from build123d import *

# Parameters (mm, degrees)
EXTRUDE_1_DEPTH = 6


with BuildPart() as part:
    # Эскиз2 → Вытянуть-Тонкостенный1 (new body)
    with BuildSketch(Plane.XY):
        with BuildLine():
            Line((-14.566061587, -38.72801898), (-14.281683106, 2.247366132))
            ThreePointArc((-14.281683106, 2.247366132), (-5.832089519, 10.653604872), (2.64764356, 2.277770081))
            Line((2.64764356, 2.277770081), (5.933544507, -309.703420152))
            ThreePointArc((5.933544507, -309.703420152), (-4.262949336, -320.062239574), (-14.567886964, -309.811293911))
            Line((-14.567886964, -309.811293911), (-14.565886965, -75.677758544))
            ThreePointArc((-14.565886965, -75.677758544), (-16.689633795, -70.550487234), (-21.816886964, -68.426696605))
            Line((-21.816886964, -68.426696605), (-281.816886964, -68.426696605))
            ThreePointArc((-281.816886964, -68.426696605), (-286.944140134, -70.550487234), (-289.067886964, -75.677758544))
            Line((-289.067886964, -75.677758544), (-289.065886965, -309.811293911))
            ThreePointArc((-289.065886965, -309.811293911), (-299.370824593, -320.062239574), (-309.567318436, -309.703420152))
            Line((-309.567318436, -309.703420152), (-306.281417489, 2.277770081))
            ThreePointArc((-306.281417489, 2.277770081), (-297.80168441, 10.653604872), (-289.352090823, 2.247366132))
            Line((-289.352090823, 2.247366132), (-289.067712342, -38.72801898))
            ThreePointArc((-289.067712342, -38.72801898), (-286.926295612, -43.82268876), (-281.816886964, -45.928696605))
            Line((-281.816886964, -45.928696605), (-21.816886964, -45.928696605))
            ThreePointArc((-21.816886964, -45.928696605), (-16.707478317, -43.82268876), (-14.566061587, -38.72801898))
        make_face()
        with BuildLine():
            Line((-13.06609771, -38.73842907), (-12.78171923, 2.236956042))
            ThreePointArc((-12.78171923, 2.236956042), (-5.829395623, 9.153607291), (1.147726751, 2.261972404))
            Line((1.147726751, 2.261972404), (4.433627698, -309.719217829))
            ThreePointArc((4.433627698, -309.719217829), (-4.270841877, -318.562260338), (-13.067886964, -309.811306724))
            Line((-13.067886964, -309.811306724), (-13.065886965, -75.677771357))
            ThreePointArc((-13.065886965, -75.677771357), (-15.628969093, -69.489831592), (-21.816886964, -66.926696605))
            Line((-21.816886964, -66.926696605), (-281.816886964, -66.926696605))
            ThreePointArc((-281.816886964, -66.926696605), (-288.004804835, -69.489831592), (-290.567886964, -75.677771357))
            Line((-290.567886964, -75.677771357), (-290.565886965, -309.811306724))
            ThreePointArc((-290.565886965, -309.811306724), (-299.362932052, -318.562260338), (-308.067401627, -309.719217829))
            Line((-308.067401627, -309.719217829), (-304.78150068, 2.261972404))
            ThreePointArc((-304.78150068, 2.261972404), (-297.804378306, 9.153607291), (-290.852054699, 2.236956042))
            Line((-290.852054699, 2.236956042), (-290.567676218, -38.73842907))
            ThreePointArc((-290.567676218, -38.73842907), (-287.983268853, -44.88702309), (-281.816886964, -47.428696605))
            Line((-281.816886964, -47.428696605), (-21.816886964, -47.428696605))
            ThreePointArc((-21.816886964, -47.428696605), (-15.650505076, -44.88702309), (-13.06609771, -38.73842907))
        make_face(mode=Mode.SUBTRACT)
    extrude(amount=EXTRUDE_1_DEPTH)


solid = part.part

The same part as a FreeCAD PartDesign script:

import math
import FreeCAD as App
import Part
import Sketcher

V = App.Vector
Q = App.Units.Quantity

doc = App.newDocument("Part")
params = doc.addObject("Spreadsheet::Sheet", "Params")
for row, (alias, value) in enumerate([
    ("sketch1_width", "260 mm"),
    ("pad1_length", "6 mm"),
], start=1):
    params.set(f"A{row}", alias)
    params.set(f"B{row}", "=" + value)
    params.setAlias(f"B{row}", alias)

body = doc.addObject("PartDesign::Body", "Body")

sketch1 = doc.addObject("Sketcher::SketchObject", "Sketch")
body.addObject(sketch1)
sketch1.AttachmentSupport = (doc.XY_Plane, [""])
sketch1.MapMode = "FlatFace"
sketch1.addGeometry(Part.LineSegment(V(-14.281683, 2.247366, 0), V(-14.566062, -38.728019, 0)), False)
sketch1.addGeometry(Part.ArcOfCircle(Part.Circle(V(-21.816887, -38.677697, 0), V(0, 0, 1), 7.251), math.radians(-90), math.radians(-0.397639)), False)
sketch1.addGeometry(Part.LineSegment(V(-21.816887, -45.928697, 0), V(-281.816887, -45.928697, 0)), False)
sketch1.addGeometry(Part.ArcOfCircle(Part.Circle(V(-281.816887, -38.677697, 0), V(0, 0, 1), 7.251), math.radians(-179.602361), math.radians(-90)), False)
sketch1.addGeometry(Part.LineSegment(V(-289.067712, -38.728019, 0), V(-289.352091, 2.247366, 0)), False)
sketch1.addGeometry(Part.ArcOfCircle(Part.Circle(V(-297.816887, 2.188619, 0), V(0, 0, 1), 8.465), math.radians(0.397639), math.radians(179.396562)), False)
sketch1.addGeometry(Part.LineSegment(V(-306.281417, 2.27777, 0), V(-309.567318, -309.70342, 0)), False)
sketch1.addGeometry(Part.ArcOfCircle(Part.Circle(V(-299.316887, -309.811381, 0), V(0, 0, 1), 10.251), math.radians(179.396562), math.radians(360.000489)), False)
sketch1.addGeometry(Part.LineSegment(V(-289.065887, -309.811294, 0), V(-289.067887, -75.677759, 0)), False)
sketch1.addGeometry(Part.ArcOfCircle(Part.Circle(V(-281.816887, -75.677697, 0), V(0, 0, 1), 7.251), math.radians(90), math.radians(180.000489)), False)
sketch1.addGeometry(Part.LineSegment(V(-281.816887, -68.426697, 0), V(-21.816887, -68.426697, 0)), False)
sketch1.addGeometry(Part.ArcOfCircle(Part.Circle(V(-21.816887, -75.677697, 0), V(0, 0, 1), 7.251), math.radians(-0.000489), math.radians(90)), False)
sketch1.addGeometry(Part.LineSegment(V(-14.565887, -75.677759, 0), V(-14.567887, -309.811294, 0)), False)
sketch1.addGeometry(Part.ArcOfCircle(Part.Circle(V(-4.316887, -309.811381, 0), V(0, 0, 1), 10.251), math.radians(179.999511), math.radians(360.603438)), False)
sketch1.addGeometry(Part.LineSegment(V(5.933545, -309.70342, 0), V(2.647644, 2.27777, 0)), False)
sketch1.addGeometry(Part.ArcOfCircle(Part.Circle(V(-5.816887, 2.188619, 0), V(0, 0, 1), 8.465), math.radians(0.603438), math.radians(179.602361)), False)
sketch1.addGeometry(Part.LineSegment(V(-13.066098, -38.738429, 0), V(-12.781719, 2.236956, 0)), False)
sketch1.addGeometry(Part.ArcOfCircle(Part.Circle(V(-5.816887, 2.188619, 0), V(0, 0, 1), 6.965), math.radians(0.603438), math.radians(179.602361)), False)
sketch1.addGeometry(Part.LineSegment(V(1.147727, 2.261972, 0), V(4.433628, -309.719218, 0)), False)
sketch1.addGeometry(Part.ArcOfCircle(Part.Circle(V(-4.316887, -309.811381, 0), V(0, 0, 1), 8.751), math.radians(179.999511), math.radians(360.603438)), False)
sketch1.addGeometry(Part.LineSegment(V(-13.067887, -309.811307, 0), V(-13.065887, -75.677771, 0)), False)
sketch1.addGeometry(Part.ArcOfCircle(Part.Circle(V(-21.816887, -75.677697, 0), V(0, 0, 1), 8.751), math.radians(-0.000489), math.radians(90)), False)
sketch1.addGeometry(Part.LineSegment(V(-21.816887, -66.926697, 0), V(-281.816887, -66.926697, 0)), False)
sketch1.addGeometry(Part.ArcOfCircle(Part.Circle(V(-281.816887, -75.677697, 0), V(0, 0, 1), 8.751), math.radians(90), math.radians(180.000489)), False)
sketch1.addGeometry(Part.LineSegment(V(-290.567887, -75.677771, 0), V(-290.565887, -309.811307, 0)), False)
sketch1.addGeometry(Part.ArcOfCircle(Part.Circle(V(-299.316887, -309.811381, 0), V(0, 0, 1), 8.751), math.radians(179.396562), math.radians(360.000489)), False)
sketch1.addGeometry(Part.LineSegment(V(-308.067402, -309.719218, 0), V(-304.781501, 2.261972, 0)), False)
sketch1.addGeometry(Part.ArcOfCircle(Part.Circle(V(-297.816887, 2.188619, 0), V(0, 0, 1), 6.965), math.radians(0.397639), math.radians(179.396562)), False)
sketch1.addGeometry(Part.LineSegment(V(-290.852055, 2.236956, 0), V(-290.567676, -38.738429, 0)), False)
sketch1.addGeometry(Part.ArcOfCircle(Part.Circle(V(-281.816887, -38.677697, 0), V(0, 0, 1), 8.751), math.radians(-179.602361), math.radians(-90)), False)
sketch1.addGeometry(Part.LineSegment(V(-281.816887, -47.428697, 0), V(-21.816887, -47.428697, 0)), False)
sketch1.addGeometry(Part.ArcOfCircle(Part.Circle(V(-21.816887, -38.677697, 0), V(0, 0, 1), 8.751), math.radians(-90), math.radians(-0.397639)), False)
sketch1.addConstraint(Sketcher.Constraint("Tangent", 0, 2, 1, 2))
sketch1.addConstraint(Sketcher.Constraint("Tangent", 1, 1, 2, 1))
sketch1.addConstraint(Sketcher.Constraint("Tangent", 2, 2, 3, 2))
sketch1.addConstraint(Sketcher.Constraint("Tangent", 3, 1, 4, 1))
sketch1.addConstraint(Sketcher.Constraint("Tangent", 4, 2, 5, 1))
sketch1.addConstraint(Sketcher.Constraint("Tangent", 5, 2, 6, 1))
sketch1.addConstraint(Sketcher.Constraint("Tangent", 6, 2, 7, 1))
sketch1.addConstraint(Sketcher.Constraint("Tangent", 7, 2, 8, 1))
sketch1.addConstraint(Sketcher.Constraint("Tangent", 8, 2, 9, 2))
sketch1.addConstraint(Sketcher.Constraint("Tangent", 9, 1, 10, 1))
sketch1.addConstraint(Sketcher.Constraint("Tangent", 10, 2, 11, 2))
sketch1.addConstraint(Sketcher.Constraint("Tangent", 11, 1, 12, 1))
sketch1.addConstraint(Sketcher.Constraint("Tangent", 12, 2, 13, 1))
sketch1.addConstraint(Sketcher.Constraint("Tangent", 13, 2, 14, 1))
sketch1.addConstraint(Sketcher.Constraint("Tangent", 14, 2, 15, 1))
sketch1.addConstraint(Sketcher.Constraint("Tangent", 15, 2, 0, 1))
sketch1.addConstraint(Sketcher.Constraint("Tangent", 16, 2, 17, 2))
sketch1.addConstraint(Sketcher.Constraint("Tangent", 17, 1, 18, 1))
sketch1.addConstraint(Sketcher.Constraint("Tangent", 18, 2, 19, 2))
sketch1.addConstraint(Sketcher.Constraint("Tangent", 19, 1, 20, 1))
sketch1.addConstraint(Sketcher.Constraint("Tangent", 20, 2, 21, 1))
sketch1.addConstraint(Sketcher.Constraint("Tangent", 21, 2, 22, 1))
sketch1.addConstraint(Sketcher.Constraint("Tangent", 22, 2, 23, 1))
sketch1.addConstraint(Sketcher.Constraint("Tangent", 23, 2, 24, 1))
sketch1.addConstraint(Sketcher.Constraint("Tangent", 24, 2, 25, 2))
sketch1.addConstraint(Sketcher.Constraint("Tangent", 25, 1, 26, 1))
sketch1.addConstraint(Sketcher.Constraint("Tangent", 26, 2, 27, 2))
sketch1.addConstraint(Sketcher.Constraint("Tangent", 27, 1, 28, 1))
sketch1.addConstraint(Sketcher.Constraint("Tangent", 28, 2, 29, 1))
sketch1.addConstraint(Sketcher.Constraint("Tangent", 29, 2, 30, 1))
sketch1.addConstraint(Sketcher.Constraint("Tangent", 30, 2, 31, 1))
sketch1.addConstraint(Sketcher.Constraint("Tangent", 31, 2, 16, 1))
sketch1.addConstraint(Sketcher.Constraint("Horizontal", 2))
sketch1.addConstraint(Sketcher.Constraint("Horizontal", 10))
sketch1.addConstraint(Sketcher.Constraint("Horizontal", 22))
sketch1.addConstraint(Sketcher.Constraint("Horizontal", 30))
sketch1.addConstraint(Sketcher.Constraint("Coincident", 17, 3, 15, 3))
sketch1.addConstraint(Sketcher.Constraint("Coincident", 19, 3, 13, 3))
sketch1.addConstraint(Sketcher.Constraint("Coincident", 21, 3, 11, 3))
sketch1.addConstraint(Sketcher.Constraint("Coincident", 23, 3, 9, 3))
sketch1.addConstraint(Sketcher.Constraint("Coincident", 25, 3, 7, 3))
sketch1.addConstraint(Sketcher.Constraint("Coincident", 27, 3, 5, 3))
sketch1.addConstraint(Sketcher.Constraint("Coincident", 29, 3, 3, 3))
sketch1.addConstraint(Sketcher.Constraint("Coincident", 31, 3, 1, 3))
sketch1.addConstraint(Sketcher.Constraint("Equal", 1, 3))
sketch1.addConstraint(Sketcher.Constraint("Equal", 3, 9))
sketch1.addConstraint(Sketcher.Constraint("Equal", 9, 11))
sketch1.addConstraint(Sketcher.Constraint("Equal", 7, 13))
sketch1.addConstraint(Sketcher.Constraint("Equal", 5, 15))
sketch1.addConstraint(Sketcher.Constraint("Equal", 19, 21))
sketch1.addConstraint(Sketcher.Constraint("Equal", 23, 25))
sketch1.addConstraint(Sketcher.Constraint("Equal", 17, 27))
sketch1.addConstraint(Sketcher.Constraint("Equal", 25, 29))
sketch1.addConstraint(Sketcher.Constraint("Parallel", 0, 16))
sketch1.addConstraint(Sketcher.Constraint("Parallel", 14, 18))
sketch1.addConstraint(Sketcher.Constraint("Horizontal", 7, 3, 13, 3))
sketch1.addConstraint(Sketcher.Constraint("Horizontal", 5, 3, 15, 3))
sketch1.addConstraint(Sketcher.Constraint("Horizontal", 0, 2, 3, 1))
sketch1.addConstraint(Sketcher.Constraint("Horizontal", 8, 2, 11, 1))
sketch1.addConstraint(Sketcher.Constraint("Vertical", 3, 3, 9, 3))
sketch1.addConstraint(Sketcher.Constraint("Vertical", 1, 3, 11, 3))
sketch1.addConstraint(Sketcher.Constraint("DistanceX", 2, 2, 2, 1, Q("260 mm")))
sketch1.addConstraint(Sketcher.Constraint("Radius", 1, Q("7.251 mm")))
sketch1.addConstraint(Sketcher.Constraint("Radius", 5, Q("8.465 mm")))
sketch1.addConstraint(Sketcher.Constraint("Radius", 7, Q("10.251 mm")))
sketch1.addConstraint(Sketcher.Constraint("DistanceX", 5, 3, 3, 3, Q("16 mm")))
sketch1.addConstraint(Sketcher.Constraint("DistanceY", 7, 3, 5, 3, Q("312 mm")))
sketch1.addConstraint(Sketcher.Constraint("DistanceY", 9, 3, 3, 3, Q("37 mm")))
sketch1.addConstraint(Sketcher.Constraint("DistanceX", 7, 3, 13, 3, Q("295 mm")))
sketch1.addConstraint(Sketcher.Constraint("DistanceX", 25, 1, -1, 1, Q("308.067402 mm")))
sketch1.addConstraint(Sketcher.Constraint("Distance", 0, Q("40.976372 mm")))
sketch1.addConstraint(Sketcher.Constraint("DistanceY", -1, 1, 5, 3, Q("2.188619 mm")))
sketch1.setExpression("Constraints[61]", "Params.sketch1_width")
pad1 = doc.addObject("PartDesign::Pad", "Pad")
body.addObject(pad1)
pad1.Profile = sketch1
pad1.setExpression("Length", "Params.pad1_length")

doc.recompute()
